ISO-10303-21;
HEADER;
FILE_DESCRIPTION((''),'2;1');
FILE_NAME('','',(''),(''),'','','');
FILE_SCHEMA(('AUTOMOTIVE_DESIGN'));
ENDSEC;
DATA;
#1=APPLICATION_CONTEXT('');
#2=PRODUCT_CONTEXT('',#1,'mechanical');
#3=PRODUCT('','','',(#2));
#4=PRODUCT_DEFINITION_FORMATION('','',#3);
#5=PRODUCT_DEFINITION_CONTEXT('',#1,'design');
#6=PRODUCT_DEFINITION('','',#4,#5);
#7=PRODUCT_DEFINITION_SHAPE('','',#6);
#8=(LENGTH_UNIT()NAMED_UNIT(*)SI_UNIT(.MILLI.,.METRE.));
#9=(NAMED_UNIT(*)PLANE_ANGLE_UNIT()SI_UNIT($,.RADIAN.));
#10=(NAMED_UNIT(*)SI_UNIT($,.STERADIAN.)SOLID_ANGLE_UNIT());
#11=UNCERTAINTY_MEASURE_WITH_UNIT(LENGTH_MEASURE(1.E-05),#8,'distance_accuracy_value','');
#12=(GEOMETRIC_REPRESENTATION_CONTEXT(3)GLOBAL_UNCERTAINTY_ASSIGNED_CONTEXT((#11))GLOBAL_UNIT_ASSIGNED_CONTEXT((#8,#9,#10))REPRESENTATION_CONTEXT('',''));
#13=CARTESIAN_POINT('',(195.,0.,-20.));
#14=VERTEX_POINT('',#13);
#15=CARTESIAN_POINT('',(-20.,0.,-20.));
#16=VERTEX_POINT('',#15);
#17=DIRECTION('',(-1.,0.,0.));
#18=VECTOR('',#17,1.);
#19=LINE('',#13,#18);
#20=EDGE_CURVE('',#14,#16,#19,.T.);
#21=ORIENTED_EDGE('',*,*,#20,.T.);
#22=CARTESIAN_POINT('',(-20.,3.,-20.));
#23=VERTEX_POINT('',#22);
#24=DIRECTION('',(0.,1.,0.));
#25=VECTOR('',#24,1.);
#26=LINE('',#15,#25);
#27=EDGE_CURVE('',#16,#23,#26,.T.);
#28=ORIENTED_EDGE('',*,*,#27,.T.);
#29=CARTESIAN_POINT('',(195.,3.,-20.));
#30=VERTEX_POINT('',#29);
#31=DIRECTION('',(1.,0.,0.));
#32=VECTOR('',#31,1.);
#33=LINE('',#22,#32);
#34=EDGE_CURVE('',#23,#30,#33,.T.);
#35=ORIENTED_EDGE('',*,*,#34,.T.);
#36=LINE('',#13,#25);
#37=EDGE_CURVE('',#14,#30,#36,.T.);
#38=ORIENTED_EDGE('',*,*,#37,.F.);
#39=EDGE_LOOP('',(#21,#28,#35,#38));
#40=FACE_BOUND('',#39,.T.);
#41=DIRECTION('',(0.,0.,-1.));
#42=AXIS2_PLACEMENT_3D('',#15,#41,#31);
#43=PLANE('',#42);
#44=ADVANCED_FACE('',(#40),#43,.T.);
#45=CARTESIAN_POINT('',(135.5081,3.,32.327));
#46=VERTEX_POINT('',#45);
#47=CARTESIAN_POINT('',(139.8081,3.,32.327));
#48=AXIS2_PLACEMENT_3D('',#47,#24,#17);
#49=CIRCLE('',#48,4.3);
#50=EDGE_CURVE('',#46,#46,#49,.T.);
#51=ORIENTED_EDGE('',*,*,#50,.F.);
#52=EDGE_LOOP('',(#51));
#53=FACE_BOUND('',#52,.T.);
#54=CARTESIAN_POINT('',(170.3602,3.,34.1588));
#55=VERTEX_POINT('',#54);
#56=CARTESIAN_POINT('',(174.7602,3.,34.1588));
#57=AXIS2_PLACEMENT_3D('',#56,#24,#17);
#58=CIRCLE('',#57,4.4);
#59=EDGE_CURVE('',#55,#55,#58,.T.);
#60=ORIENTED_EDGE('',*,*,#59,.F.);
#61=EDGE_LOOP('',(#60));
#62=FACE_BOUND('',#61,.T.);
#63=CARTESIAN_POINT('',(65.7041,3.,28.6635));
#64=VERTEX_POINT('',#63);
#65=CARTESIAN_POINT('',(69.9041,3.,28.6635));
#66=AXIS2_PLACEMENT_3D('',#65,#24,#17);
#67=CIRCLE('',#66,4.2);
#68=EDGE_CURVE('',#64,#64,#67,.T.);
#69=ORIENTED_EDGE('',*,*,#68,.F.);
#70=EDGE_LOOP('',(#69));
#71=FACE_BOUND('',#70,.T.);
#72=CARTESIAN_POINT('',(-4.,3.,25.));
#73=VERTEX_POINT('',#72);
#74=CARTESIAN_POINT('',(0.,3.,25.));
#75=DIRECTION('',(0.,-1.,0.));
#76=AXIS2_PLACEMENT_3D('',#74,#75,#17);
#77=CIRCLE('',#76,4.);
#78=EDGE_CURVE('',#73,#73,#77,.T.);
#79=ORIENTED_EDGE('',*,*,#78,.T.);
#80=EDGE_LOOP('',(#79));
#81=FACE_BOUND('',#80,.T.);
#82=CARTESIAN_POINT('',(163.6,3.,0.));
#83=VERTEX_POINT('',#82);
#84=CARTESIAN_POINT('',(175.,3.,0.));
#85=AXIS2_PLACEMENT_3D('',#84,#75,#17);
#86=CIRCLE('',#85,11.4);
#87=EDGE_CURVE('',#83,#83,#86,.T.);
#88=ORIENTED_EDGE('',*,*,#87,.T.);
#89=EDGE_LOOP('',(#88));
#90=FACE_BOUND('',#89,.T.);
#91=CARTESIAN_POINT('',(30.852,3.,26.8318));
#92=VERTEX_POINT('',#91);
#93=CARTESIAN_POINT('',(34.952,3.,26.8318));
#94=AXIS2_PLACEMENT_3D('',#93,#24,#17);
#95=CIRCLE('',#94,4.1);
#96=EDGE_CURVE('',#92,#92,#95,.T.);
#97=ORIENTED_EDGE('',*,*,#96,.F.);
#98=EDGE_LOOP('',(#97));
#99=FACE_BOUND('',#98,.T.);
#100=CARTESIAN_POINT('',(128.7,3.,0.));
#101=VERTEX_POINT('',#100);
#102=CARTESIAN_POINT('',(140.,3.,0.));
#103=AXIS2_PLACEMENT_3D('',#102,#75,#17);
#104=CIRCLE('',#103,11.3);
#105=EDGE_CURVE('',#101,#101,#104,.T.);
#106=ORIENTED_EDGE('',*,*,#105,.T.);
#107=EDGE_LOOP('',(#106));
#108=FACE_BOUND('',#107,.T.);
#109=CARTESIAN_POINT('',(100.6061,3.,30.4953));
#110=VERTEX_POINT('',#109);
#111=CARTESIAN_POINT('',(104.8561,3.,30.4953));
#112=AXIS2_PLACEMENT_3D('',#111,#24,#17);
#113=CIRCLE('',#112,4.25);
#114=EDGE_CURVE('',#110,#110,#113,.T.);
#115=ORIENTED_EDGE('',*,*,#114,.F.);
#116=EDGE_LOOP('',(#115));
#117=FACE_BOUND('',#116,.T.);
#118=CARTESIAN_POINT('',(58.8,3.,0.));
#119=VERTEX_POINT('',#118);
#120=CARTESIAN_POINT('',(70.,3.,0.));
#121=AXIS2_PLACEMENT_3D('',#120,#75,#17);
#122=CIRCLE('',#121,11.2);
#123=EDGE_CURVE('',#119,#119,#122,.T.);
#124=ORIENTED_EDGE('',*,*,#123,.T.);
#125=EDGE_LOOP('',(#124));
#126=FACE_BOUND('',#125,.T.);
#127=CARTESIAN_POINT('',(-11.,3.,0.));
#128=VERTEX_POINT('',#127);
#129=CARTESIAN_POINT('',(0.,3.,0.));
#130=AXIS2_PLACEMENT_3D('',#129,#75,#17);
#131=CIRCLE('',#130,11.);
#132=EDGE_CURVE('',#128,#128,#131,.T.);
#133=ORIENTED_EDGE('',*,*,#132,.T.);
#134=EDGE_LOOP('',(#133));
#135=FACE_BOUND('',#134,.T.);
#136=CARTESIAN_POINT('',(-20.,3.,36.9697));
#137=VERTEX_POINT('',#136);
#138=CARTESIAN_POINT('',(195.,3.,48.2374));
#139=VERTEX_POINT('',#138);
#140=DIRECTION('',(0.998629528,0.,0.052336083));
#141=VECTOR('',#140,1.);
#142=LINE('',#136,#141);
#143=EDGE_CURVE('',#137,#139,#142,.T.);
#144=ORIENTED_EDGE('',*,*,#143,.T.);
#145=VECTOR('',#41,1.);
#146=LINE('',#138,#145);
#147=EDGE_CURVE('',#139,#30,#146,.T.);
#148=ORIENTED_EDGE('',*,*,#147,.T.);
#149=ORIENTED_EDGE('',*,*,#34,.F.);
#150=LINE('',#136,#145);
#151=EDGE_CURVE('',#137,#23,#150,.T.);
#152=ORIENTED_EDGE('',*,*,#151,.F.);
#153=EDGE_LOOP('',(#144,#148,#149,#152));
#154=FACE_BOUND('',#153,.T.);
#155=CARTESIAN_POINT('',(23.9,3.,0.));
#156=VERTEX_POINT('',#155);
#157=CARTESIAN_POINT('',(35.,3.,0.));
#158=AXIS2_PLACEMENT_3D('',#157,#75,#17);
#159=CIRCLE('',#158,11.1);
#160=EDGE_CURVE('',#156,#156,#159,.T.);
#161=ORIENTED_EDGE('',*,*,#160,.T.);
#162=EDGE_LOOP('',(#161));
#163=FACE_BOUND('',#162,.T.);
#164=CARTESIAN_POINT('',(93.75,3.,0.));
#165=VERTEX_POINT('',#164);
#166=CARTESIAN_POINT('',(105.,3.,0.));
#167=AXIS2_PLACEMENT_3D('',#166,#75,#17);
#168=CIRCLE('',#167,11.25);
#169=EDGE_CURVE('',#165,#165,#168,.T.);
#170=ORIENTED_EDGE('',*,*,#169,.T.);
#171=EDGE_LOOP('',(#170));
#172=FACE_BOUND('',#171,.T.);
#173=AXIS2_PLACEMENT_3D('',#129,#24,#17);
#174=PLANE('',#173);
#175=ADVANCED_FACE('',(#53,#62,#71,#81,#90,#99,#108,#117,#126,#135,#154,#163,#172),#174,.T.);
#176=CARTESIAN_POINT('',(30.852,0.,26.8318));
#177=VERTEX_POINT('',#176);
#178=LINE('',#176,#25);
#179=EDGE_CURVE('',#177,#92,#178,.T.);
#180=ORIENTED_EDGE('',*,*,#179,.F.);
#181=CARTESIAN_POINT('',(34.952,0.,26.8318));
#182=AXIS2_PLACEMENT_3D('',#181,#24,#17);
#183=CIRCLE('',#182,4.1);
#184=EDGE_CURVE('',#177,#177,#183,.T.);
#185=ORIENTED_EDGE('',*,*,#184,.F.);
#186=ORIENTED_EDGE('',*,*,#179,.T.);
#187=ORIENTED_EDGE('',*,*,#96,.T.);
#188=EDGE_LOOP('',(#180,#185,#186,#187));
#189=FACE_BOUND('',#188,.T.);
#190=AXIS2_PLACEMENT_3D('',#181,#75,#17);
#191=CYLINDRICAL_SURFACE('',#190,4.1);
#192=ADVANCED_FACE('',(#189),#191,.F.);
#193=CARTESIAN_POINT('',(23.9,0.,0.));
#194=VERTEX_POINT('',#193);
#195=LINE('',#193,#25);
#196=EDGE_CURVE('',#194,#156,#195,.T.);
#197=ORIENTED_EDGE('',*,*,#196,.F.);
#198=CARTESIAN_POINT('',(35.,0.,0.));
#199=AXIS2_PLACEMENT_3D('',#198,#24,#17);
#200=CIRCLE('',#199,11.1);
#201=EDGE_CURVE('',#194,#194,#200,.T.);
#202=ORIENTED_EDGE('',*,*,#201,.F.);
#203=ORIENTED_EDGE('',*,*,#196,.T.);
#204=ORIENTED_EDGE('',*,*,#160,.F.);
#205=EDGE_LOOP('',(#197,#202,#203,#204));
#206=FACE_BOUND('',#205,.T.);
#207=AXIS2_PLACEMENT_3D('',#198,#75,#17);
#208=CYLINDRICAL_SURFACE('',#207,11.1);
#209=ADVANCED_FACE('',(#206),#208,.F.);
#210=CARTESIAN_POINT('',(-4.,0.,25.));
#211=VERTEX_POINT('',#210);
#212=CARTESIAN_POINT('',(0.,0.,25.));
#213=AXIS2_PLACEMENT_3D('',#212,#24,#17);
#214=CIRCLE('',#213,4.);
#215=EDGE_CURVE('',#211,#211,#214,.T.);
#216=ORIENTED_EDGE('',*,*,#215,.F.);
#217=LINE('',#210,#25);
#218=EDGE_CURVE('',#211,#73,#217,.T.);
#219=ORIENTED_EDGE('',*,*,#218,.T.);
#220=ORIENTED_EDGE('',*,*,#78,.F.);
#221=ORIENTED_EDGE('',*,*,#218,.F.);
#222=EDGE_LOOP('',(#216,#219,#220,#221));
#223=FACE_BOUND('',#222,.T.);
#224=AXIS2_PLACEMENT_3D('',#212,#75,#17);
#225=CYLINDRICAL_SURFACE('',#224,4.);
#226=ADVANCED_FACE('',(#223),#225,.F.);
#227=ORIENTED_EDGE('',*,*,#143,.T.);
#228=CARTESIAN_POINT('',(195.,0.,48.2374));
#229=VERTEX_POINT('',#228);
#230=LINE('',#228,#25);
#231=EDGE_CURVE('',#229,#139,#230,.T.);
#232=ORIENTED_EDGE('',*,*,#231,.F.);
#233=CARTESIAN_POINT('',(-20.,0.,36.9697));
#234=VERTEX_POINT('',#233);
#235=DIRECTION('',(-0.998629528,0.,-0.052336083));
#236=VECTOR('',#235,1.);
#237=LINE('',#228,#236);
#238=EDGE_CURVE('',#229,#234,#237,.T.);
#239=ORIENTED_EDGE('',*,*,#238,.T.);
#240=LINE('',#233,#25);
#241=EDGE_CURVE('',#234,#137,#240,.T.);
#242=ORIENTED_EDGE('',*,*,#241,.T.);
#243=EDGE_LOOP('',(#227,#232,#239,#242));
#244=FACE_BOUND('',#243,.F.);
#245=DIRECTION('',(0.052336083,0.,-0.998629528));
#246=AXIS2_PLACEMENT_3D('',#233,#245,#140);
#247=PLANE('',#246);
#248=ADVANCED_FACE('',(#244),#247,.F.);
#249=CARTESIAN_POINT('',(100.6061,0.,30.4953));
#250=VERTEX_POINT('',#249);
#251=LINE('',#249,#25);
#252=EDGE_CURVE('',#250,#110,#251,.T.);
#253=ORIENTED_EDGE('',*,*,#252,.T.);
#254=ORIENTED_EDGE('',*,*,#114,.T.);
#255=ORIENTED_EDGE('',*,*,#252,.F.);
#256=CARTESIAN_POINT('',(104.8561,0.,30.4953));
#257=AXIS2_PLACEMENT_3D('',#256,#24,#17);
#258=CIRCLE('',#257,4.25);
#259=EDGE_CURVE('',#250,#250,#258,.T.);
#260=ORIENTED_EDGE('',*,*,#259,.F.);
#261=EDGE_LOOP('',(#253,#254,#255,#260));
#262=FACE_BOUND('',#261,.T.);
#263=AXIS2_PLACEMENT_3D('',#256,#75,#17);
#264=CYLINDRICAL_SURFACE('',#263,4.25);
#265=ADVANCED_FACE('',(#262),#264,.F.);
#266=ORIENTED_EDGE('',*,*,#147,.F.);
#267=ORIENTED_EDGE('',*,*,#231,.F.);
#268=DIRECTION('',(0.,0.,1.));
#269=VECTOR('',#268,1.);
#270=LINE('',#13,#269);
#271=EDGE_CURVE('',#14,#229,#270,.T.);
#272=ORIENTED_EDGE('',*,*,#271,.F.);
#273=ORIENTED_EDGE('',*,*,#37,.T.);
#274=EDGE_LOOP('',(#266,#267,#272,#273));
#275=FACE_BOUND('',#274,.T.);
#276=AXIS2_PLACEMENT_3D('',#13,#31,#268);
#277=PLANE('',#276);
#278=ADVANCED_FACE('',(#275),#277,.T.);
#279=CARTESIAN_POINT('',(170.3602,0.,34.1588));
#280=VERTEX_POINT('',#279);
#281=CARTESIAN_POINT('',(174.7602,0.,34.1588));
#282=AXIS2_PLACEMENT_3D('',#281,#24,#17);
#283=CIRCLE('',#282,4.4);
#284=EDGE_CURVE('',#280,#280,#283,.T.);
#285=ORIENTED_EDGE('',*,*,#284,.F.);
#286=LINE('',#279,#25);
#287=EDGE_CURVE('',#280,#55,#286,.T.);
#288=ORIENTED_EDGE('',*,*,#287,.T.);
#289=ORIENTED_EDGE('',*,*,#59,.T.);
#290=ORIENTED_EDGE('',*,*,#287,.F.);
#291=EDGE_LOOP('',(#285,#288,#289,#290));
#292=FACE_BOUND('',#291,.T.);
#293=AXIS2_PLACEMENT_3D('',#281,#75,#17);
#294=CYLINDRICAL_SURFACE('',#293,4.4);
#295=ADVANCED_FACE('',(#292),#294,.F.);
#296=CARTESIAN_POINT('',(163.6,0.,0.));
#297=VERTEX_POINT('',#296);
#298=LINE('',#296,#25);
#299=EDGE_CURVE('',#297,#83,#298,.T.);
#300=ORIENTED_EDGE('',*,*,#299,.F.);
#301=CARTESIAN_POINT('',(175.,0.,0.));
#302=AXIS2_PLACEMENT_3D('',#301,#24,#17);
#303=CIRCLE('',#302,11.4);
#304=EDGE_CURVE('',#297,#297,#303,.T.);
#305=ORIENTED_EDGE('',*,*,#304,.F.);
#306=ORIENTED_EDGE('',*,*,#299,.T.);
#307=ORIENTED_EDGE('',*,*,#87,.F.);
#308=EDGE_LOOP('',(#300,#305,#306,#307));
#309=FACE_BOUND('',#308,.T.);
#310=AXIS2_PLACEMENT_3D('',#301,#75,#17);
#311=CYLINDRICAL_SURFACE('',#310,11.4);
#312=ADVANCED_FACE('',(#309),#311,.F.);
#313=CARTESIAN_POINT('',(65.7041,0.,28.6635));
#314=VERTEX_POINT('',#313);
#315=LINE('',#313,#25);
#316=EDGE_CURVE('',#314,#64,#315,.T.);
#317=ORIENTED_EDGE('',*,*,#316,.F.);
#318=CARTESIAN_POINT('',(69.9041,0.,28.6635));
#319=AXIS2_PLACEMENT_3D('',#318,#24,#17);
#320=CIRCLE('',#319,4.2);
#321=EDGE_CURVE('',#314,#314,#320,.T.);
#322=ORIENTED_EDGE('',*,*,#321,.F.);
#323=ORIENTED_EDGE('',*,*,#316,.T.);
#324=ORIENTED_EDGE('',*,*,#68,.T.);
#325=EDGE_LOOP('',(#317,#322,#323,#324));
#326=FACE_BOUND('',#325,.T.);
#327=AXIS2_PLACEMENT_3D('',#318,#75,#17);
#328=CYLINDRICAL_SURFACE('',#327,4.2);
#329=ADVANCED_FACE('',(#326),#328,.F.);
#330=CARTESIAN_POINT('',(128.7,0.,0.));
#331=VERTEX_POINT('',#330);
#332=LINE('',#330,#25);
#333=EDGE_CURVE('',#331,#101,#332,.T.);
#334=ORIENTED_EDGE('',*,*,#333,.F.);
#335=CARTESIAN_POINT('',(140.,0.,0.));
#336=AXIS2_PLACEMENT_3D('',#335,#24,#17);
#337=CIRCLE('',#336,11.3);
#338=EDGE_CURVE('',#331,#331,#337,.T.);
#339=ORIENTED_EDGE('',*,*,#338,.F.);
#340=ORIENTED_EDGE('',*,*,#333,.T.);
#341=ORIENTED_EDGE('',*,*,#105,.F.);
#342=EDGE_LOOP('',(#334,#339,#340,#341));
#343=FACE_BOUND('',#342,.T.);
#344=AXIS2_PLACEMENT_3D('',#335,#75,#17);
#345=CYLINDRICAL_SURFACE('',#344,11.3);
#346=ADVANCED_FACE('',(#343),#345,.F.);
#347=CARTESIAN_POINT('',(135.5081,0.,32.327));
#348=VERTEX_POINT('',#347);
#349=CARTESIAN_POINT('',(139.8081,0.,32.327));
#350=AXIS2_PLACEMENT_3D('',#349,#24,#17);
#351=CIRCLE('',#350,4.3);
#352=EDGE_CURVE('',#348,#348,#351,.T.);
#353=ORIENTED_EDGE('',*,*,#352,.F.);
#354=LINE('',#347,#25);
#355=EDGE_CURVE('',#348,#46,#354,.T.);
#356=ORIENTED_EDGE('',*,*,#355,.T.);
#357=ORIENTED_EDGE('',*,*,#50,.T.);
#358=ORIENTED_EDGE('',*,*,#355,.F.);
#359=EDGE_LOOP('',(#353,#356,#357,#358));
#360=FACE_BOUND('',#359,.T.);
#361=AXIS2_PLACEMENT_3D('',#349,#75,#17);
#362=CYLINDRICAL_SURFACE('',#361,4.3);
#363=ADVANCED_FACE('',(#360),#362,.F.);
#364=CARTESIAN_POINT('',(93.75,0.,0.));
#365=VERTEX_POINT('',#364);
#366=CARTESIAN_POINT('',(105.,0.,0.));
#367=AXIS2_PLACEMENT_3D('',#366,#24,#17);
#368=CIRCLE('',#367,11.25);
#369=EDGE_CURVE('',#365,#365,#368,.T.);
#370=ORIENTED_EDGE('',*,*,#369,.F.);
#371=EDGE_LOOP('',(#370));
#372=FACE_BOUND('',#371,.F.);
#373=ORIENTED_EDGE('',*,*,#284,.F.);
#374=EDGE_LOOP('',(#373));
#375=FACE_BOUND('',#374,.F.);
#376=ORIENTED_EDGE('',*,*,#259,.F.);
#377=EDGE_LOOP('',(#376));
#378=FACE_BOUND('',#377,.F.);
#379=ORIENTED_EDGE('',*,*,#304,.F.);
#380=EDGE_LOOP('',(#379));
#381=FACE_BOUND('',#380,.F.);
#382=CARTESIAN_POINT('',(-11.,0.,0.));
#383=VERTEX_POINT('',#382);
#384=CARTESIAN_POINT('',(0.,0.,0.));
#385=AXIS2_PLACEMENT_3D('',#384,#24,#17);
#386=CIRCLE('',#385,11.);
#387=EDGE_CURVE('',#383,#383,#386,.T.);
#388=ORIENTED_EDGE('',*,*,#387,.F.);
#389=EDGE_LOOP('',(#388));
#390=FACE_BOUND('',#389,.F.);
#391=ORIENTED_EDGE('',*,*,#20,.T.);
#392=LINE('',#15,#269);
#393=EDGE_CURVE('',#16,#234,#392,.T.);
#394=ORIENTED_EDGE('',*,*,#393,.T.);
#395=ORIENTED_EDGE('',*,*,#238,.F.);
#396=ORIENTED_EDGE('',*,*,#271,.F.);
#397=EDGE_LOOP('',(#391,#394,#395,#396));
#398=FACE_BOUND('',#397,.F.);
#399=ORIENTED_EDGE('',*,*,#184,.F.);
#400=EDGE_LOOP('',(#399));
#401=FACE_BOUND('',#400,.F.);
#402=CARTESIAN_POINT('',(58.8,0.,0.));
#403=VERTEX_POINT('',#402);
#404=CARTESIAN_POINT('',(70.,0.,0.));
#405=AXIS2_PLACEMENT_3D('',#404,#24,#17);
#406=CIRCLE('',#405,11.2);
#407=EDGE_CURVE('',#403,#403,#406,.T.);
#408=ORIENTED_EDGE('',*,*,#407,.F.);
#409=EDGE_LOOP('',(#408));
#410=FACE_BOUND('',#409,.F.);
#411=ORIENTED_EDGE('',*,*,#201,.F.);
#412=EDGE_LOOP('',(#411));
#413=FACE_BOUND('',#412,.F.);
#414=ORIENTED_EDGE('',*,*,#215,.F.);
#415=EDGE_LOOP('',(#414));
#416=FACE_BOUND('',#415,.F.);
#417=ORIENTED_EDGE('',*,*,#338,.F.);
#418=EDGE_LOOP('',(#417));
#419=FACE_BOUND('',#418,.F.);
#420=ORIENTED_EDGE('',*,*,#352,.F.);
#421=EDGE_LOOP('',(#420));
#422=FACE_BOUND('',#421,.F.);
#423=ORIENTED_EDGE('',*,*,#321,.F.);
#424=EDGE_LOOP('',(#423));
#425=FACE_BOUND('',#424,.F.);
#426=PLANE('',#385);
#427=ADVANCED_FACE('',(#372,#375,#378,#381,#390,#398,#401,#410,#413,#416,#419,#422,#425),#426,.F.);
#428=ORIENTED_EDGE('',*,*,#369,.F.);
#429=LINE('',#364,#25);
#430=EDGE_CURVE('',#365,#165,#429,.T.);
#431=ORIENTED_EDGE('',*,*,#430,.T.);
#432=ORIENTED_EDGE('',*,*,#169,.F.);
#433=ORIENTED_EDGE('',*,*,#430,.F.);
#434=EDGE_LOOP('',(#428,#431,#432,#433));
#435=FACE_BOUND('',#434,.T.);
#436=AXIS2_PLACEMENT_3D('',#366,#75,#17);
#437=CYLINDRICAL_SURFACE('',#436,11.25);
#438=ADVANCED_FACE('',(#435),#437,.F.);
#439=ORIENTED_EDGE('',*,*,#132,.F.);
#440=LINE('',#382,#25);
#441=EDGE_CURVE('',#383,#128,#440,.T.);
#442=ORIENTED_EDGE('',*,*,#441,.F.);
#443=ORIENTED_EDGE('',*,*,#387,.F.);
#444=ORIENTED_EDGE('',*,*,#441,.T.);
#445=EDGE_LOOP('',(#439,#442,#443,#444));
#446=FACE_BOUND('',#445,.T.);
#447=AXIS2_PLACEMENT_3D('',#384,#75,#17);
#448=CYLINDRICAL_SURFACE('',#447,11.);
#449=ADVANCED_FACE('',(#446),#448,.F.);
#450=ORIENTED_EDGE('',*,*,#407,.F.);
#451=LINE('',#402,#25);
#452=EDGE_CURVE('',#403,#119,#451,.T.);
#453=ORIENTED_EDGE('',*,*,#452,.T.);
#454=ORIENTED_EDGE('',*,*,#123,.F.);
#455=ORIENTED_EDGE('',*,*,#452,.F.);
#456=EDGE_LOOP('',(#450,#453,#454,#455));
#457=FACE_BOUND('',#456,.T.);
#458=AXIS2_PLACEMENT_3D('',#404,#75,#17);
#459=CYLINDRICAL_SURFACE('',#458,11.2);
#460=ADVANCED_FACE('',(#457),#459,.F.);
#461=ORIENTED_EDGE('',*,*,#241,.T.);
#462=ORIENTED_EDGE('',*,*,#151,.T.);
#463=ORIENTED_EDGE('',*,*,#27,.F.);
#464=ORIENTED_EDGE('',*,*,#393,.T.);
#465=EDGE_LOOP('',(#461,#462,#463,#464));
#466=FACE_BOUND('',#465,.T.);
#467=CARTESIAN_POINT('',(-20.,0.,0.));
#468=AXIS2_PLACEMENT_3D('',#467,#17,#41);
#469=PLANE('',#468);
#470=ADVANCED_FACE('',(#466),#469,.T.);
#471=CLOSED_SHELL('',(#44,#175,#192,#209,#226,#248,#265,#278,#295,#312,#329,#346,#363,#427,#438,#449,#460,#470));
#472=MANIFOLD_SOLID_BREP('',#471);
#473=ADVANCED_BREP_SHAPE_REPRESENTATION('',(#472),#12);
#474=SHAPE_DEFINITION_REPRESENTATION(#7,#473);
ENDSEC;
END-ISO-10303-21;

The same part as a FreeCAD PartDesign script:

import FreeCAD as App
import Part
import Sketcher

V = App.Vector
Q = App.Units.Quantity

doc = App.newDocument("Part")
body = doc.addObject("PartDesign::Body", "Body")

# Sketch on XZ plane
sketch1 = body.newObject("Sketcher::SketchObject", "Sketch")
sketch1.AttachmentSupport = (doc.getObject("XZ_Plane"), [""])
sketch1.MapMode = "FlatFace"
sketch1.addGeometry([
    Part.LineSegment(V(-20, -20, 0), V(-20, 37, 0)),  # 0
    Part.LineSegment(V(-20, 37, 0), V(195, 48.2, 0)),  # 1
    Part.LineSegment(V(195, 48.2, 0), V(195, -20, 0)),  # 2
    Part.LineSegment(V(195, -20, 0), V(-20, -20, 0)),  # 3
    Part.Circle(V(0, 0, 0), V(0, 0, 1), 11),  # 4
    Part.Circle(V(175, 0, 0), V(0, 0, 1), 11.4),  # 5
    Part.Circle(V(140, 0, 0), V(0, 0, 1), 11.3),  # 6
    Part.Circle(V(105, 0, 0), V(0, 0, 1), 11.2),  # 7
    Part.Circle(V(70, 0, 0), V(0, 0, 1), 11.2),  # 8
    Part.Circle(V(35, 0, 0), V(0, 0, 1), 11.1),  # 9
    Part.Circle(V(0, 25, 0), V(0, 0, 1), 4),  # 10
    Part.Circle(V(104.9, 30.5, 0), V(0, 0, 1), 4.2),  # 11
    Part.Circle(V(174.8, 34.2, 0), V(0, 0, 1), 4.4),  # 12
    Part.Circle(V(139.8, 32.3, 0), V(0, 0, 1), 4.3),  # 13
    Part.Circle(V(69.9, 28.7, 0), V(0, 0, 1), 4.2),  # 14
    Part.Circle(V(35, 26.8, 0), V(0, 0, 1), 4.1),  # 15
], False)
sketch1.addConstraint([
    Sketcher.Constraint("Coincident", 0, 2, 1, 1),
    Sketcher.Constraint("Coincident", 1, 2, 2, 1),
    Sketcher.Constraint("Coincident", 2, 2, 3, 1),
    Sketcher.Constraint("Coincident", 3, 2, 0, 1),
    Sketcher.Constraint("Vertical", 0),
    Sketcher.Constraint("Vertical", 2),
    Sketcher.Constraint("Horizontal", 3),
    Sketcher.Constraint("Coincident", 4, 3, -1, 1),
    Sketcher.Constraint("PointOnObject", 5, 3, -1),
    Sketcher.Constraint("PointOnObject", 6, 3, -1),
    Sketcher.Constraint("PointOnObject", 7, 3, -1),
    Sketcher.Constraint("PointOnObject", 8, 3, -1),
    Sketcher.Constraint("PointOnObject", 9, 3, -1),
    Sketcher.Constraint("PointOnObject", 10, 3, -2),
    Sketcher.Constraint("Diameter", 4, 22.0),
    Sketcher.Constraint("Diameter", 10, 8.0),
    Sketcher.Constraint("Diameter", 5, 22.8),
    Sketcher.Constraint("Diameter", 6, 22.6),
    Sketcher.Constraint("Diameter", 7, 22.5),
    Sketcher.Constraint("Diameter", 8, 22.4),
    Sketcher.Constraint("Diameter", 9, 22.2),
    Sketcher.Constraint("Diameter", 11, 8.5),
    Sketcher.Constraint("Diameter", 12, 8.8),
    Sketcher.Constraint("Diameter", 13, 8.6),
    Sketcher.Constraint("Diameter", 14, 8.4),
    Sketcher.Constraint("Diameter", 15, 8.2),
    Sketcher.Constraint("Angle", 1, Q("3 deg")),
    Sketcher.Constraint("DistanceX", -1, 1, 9, 3, 35.0),
    Sketcher.Constraint("DistanceY", -1, 1, 10, 3, 25.0),
    Sketcher.Constraint("DistanceX", 0, 2, -1, 1, 20.0),
    Sketcher.Constraint("DistanceY", 2, 2, -1, 1, 20.0),
    Sketcher.Constraint("DistanceX", 6, 3, 5, 3, 35.0),
    Sketcher.Constraint("DistanceX", 7, 3, 6, 3, 35.0),
    Sketcher.Constraint("DistanceX", 8, 3, 7, 3, 35.0),
    Sketcher.Constraint("DistanceX", 9, 3, 8, 3, 35.0),
    Sketcher.Constraint("DistanceX", 5, 3, 1, 2, 20.0),
    Sketcher.Constraint("DistanceY", 0, 1, 0, 2, 56.9697),
    Sketcher.Constraint("DistanceX", -1, 1, 11, 3, 104.856),
    Sketcher.Constraint("DistanceX", -1, 1, 13, 3, 139.808),
    Sketcher.Constraint("DistanceY", -1, 1, 13, 3, 32.327),
    Sketcher.Constraint("DistanceX", -1, 1, 14, 3, 69.904),
    Sketcher.Constraint("DistanceX", -1, 1, 15, 3, 34.952),
    Sketcher.Constraint("DistanceX", 11, 3, 12, 3, 69.904),
    Sketcher.Constraint("DistanceY", 15, 3, 0, 2, 10.138),
    Sketcher.Constraint("DistanceY", 11, 3, 1, 2, 17.742),
    Sketcher.Constraint("DistanceY", -1, 1, 12, 3, 34.1588),
    Sketcher.Constraint("DistanceY", -1, 1, 14, 3, 28.6635),
])
pad1 = body.newObject("PartDesign::Pad", "Pad")
pad1.Profile = sketch1
pad1.Length = 3
pad1.Reversed = True

doc.recompute()
